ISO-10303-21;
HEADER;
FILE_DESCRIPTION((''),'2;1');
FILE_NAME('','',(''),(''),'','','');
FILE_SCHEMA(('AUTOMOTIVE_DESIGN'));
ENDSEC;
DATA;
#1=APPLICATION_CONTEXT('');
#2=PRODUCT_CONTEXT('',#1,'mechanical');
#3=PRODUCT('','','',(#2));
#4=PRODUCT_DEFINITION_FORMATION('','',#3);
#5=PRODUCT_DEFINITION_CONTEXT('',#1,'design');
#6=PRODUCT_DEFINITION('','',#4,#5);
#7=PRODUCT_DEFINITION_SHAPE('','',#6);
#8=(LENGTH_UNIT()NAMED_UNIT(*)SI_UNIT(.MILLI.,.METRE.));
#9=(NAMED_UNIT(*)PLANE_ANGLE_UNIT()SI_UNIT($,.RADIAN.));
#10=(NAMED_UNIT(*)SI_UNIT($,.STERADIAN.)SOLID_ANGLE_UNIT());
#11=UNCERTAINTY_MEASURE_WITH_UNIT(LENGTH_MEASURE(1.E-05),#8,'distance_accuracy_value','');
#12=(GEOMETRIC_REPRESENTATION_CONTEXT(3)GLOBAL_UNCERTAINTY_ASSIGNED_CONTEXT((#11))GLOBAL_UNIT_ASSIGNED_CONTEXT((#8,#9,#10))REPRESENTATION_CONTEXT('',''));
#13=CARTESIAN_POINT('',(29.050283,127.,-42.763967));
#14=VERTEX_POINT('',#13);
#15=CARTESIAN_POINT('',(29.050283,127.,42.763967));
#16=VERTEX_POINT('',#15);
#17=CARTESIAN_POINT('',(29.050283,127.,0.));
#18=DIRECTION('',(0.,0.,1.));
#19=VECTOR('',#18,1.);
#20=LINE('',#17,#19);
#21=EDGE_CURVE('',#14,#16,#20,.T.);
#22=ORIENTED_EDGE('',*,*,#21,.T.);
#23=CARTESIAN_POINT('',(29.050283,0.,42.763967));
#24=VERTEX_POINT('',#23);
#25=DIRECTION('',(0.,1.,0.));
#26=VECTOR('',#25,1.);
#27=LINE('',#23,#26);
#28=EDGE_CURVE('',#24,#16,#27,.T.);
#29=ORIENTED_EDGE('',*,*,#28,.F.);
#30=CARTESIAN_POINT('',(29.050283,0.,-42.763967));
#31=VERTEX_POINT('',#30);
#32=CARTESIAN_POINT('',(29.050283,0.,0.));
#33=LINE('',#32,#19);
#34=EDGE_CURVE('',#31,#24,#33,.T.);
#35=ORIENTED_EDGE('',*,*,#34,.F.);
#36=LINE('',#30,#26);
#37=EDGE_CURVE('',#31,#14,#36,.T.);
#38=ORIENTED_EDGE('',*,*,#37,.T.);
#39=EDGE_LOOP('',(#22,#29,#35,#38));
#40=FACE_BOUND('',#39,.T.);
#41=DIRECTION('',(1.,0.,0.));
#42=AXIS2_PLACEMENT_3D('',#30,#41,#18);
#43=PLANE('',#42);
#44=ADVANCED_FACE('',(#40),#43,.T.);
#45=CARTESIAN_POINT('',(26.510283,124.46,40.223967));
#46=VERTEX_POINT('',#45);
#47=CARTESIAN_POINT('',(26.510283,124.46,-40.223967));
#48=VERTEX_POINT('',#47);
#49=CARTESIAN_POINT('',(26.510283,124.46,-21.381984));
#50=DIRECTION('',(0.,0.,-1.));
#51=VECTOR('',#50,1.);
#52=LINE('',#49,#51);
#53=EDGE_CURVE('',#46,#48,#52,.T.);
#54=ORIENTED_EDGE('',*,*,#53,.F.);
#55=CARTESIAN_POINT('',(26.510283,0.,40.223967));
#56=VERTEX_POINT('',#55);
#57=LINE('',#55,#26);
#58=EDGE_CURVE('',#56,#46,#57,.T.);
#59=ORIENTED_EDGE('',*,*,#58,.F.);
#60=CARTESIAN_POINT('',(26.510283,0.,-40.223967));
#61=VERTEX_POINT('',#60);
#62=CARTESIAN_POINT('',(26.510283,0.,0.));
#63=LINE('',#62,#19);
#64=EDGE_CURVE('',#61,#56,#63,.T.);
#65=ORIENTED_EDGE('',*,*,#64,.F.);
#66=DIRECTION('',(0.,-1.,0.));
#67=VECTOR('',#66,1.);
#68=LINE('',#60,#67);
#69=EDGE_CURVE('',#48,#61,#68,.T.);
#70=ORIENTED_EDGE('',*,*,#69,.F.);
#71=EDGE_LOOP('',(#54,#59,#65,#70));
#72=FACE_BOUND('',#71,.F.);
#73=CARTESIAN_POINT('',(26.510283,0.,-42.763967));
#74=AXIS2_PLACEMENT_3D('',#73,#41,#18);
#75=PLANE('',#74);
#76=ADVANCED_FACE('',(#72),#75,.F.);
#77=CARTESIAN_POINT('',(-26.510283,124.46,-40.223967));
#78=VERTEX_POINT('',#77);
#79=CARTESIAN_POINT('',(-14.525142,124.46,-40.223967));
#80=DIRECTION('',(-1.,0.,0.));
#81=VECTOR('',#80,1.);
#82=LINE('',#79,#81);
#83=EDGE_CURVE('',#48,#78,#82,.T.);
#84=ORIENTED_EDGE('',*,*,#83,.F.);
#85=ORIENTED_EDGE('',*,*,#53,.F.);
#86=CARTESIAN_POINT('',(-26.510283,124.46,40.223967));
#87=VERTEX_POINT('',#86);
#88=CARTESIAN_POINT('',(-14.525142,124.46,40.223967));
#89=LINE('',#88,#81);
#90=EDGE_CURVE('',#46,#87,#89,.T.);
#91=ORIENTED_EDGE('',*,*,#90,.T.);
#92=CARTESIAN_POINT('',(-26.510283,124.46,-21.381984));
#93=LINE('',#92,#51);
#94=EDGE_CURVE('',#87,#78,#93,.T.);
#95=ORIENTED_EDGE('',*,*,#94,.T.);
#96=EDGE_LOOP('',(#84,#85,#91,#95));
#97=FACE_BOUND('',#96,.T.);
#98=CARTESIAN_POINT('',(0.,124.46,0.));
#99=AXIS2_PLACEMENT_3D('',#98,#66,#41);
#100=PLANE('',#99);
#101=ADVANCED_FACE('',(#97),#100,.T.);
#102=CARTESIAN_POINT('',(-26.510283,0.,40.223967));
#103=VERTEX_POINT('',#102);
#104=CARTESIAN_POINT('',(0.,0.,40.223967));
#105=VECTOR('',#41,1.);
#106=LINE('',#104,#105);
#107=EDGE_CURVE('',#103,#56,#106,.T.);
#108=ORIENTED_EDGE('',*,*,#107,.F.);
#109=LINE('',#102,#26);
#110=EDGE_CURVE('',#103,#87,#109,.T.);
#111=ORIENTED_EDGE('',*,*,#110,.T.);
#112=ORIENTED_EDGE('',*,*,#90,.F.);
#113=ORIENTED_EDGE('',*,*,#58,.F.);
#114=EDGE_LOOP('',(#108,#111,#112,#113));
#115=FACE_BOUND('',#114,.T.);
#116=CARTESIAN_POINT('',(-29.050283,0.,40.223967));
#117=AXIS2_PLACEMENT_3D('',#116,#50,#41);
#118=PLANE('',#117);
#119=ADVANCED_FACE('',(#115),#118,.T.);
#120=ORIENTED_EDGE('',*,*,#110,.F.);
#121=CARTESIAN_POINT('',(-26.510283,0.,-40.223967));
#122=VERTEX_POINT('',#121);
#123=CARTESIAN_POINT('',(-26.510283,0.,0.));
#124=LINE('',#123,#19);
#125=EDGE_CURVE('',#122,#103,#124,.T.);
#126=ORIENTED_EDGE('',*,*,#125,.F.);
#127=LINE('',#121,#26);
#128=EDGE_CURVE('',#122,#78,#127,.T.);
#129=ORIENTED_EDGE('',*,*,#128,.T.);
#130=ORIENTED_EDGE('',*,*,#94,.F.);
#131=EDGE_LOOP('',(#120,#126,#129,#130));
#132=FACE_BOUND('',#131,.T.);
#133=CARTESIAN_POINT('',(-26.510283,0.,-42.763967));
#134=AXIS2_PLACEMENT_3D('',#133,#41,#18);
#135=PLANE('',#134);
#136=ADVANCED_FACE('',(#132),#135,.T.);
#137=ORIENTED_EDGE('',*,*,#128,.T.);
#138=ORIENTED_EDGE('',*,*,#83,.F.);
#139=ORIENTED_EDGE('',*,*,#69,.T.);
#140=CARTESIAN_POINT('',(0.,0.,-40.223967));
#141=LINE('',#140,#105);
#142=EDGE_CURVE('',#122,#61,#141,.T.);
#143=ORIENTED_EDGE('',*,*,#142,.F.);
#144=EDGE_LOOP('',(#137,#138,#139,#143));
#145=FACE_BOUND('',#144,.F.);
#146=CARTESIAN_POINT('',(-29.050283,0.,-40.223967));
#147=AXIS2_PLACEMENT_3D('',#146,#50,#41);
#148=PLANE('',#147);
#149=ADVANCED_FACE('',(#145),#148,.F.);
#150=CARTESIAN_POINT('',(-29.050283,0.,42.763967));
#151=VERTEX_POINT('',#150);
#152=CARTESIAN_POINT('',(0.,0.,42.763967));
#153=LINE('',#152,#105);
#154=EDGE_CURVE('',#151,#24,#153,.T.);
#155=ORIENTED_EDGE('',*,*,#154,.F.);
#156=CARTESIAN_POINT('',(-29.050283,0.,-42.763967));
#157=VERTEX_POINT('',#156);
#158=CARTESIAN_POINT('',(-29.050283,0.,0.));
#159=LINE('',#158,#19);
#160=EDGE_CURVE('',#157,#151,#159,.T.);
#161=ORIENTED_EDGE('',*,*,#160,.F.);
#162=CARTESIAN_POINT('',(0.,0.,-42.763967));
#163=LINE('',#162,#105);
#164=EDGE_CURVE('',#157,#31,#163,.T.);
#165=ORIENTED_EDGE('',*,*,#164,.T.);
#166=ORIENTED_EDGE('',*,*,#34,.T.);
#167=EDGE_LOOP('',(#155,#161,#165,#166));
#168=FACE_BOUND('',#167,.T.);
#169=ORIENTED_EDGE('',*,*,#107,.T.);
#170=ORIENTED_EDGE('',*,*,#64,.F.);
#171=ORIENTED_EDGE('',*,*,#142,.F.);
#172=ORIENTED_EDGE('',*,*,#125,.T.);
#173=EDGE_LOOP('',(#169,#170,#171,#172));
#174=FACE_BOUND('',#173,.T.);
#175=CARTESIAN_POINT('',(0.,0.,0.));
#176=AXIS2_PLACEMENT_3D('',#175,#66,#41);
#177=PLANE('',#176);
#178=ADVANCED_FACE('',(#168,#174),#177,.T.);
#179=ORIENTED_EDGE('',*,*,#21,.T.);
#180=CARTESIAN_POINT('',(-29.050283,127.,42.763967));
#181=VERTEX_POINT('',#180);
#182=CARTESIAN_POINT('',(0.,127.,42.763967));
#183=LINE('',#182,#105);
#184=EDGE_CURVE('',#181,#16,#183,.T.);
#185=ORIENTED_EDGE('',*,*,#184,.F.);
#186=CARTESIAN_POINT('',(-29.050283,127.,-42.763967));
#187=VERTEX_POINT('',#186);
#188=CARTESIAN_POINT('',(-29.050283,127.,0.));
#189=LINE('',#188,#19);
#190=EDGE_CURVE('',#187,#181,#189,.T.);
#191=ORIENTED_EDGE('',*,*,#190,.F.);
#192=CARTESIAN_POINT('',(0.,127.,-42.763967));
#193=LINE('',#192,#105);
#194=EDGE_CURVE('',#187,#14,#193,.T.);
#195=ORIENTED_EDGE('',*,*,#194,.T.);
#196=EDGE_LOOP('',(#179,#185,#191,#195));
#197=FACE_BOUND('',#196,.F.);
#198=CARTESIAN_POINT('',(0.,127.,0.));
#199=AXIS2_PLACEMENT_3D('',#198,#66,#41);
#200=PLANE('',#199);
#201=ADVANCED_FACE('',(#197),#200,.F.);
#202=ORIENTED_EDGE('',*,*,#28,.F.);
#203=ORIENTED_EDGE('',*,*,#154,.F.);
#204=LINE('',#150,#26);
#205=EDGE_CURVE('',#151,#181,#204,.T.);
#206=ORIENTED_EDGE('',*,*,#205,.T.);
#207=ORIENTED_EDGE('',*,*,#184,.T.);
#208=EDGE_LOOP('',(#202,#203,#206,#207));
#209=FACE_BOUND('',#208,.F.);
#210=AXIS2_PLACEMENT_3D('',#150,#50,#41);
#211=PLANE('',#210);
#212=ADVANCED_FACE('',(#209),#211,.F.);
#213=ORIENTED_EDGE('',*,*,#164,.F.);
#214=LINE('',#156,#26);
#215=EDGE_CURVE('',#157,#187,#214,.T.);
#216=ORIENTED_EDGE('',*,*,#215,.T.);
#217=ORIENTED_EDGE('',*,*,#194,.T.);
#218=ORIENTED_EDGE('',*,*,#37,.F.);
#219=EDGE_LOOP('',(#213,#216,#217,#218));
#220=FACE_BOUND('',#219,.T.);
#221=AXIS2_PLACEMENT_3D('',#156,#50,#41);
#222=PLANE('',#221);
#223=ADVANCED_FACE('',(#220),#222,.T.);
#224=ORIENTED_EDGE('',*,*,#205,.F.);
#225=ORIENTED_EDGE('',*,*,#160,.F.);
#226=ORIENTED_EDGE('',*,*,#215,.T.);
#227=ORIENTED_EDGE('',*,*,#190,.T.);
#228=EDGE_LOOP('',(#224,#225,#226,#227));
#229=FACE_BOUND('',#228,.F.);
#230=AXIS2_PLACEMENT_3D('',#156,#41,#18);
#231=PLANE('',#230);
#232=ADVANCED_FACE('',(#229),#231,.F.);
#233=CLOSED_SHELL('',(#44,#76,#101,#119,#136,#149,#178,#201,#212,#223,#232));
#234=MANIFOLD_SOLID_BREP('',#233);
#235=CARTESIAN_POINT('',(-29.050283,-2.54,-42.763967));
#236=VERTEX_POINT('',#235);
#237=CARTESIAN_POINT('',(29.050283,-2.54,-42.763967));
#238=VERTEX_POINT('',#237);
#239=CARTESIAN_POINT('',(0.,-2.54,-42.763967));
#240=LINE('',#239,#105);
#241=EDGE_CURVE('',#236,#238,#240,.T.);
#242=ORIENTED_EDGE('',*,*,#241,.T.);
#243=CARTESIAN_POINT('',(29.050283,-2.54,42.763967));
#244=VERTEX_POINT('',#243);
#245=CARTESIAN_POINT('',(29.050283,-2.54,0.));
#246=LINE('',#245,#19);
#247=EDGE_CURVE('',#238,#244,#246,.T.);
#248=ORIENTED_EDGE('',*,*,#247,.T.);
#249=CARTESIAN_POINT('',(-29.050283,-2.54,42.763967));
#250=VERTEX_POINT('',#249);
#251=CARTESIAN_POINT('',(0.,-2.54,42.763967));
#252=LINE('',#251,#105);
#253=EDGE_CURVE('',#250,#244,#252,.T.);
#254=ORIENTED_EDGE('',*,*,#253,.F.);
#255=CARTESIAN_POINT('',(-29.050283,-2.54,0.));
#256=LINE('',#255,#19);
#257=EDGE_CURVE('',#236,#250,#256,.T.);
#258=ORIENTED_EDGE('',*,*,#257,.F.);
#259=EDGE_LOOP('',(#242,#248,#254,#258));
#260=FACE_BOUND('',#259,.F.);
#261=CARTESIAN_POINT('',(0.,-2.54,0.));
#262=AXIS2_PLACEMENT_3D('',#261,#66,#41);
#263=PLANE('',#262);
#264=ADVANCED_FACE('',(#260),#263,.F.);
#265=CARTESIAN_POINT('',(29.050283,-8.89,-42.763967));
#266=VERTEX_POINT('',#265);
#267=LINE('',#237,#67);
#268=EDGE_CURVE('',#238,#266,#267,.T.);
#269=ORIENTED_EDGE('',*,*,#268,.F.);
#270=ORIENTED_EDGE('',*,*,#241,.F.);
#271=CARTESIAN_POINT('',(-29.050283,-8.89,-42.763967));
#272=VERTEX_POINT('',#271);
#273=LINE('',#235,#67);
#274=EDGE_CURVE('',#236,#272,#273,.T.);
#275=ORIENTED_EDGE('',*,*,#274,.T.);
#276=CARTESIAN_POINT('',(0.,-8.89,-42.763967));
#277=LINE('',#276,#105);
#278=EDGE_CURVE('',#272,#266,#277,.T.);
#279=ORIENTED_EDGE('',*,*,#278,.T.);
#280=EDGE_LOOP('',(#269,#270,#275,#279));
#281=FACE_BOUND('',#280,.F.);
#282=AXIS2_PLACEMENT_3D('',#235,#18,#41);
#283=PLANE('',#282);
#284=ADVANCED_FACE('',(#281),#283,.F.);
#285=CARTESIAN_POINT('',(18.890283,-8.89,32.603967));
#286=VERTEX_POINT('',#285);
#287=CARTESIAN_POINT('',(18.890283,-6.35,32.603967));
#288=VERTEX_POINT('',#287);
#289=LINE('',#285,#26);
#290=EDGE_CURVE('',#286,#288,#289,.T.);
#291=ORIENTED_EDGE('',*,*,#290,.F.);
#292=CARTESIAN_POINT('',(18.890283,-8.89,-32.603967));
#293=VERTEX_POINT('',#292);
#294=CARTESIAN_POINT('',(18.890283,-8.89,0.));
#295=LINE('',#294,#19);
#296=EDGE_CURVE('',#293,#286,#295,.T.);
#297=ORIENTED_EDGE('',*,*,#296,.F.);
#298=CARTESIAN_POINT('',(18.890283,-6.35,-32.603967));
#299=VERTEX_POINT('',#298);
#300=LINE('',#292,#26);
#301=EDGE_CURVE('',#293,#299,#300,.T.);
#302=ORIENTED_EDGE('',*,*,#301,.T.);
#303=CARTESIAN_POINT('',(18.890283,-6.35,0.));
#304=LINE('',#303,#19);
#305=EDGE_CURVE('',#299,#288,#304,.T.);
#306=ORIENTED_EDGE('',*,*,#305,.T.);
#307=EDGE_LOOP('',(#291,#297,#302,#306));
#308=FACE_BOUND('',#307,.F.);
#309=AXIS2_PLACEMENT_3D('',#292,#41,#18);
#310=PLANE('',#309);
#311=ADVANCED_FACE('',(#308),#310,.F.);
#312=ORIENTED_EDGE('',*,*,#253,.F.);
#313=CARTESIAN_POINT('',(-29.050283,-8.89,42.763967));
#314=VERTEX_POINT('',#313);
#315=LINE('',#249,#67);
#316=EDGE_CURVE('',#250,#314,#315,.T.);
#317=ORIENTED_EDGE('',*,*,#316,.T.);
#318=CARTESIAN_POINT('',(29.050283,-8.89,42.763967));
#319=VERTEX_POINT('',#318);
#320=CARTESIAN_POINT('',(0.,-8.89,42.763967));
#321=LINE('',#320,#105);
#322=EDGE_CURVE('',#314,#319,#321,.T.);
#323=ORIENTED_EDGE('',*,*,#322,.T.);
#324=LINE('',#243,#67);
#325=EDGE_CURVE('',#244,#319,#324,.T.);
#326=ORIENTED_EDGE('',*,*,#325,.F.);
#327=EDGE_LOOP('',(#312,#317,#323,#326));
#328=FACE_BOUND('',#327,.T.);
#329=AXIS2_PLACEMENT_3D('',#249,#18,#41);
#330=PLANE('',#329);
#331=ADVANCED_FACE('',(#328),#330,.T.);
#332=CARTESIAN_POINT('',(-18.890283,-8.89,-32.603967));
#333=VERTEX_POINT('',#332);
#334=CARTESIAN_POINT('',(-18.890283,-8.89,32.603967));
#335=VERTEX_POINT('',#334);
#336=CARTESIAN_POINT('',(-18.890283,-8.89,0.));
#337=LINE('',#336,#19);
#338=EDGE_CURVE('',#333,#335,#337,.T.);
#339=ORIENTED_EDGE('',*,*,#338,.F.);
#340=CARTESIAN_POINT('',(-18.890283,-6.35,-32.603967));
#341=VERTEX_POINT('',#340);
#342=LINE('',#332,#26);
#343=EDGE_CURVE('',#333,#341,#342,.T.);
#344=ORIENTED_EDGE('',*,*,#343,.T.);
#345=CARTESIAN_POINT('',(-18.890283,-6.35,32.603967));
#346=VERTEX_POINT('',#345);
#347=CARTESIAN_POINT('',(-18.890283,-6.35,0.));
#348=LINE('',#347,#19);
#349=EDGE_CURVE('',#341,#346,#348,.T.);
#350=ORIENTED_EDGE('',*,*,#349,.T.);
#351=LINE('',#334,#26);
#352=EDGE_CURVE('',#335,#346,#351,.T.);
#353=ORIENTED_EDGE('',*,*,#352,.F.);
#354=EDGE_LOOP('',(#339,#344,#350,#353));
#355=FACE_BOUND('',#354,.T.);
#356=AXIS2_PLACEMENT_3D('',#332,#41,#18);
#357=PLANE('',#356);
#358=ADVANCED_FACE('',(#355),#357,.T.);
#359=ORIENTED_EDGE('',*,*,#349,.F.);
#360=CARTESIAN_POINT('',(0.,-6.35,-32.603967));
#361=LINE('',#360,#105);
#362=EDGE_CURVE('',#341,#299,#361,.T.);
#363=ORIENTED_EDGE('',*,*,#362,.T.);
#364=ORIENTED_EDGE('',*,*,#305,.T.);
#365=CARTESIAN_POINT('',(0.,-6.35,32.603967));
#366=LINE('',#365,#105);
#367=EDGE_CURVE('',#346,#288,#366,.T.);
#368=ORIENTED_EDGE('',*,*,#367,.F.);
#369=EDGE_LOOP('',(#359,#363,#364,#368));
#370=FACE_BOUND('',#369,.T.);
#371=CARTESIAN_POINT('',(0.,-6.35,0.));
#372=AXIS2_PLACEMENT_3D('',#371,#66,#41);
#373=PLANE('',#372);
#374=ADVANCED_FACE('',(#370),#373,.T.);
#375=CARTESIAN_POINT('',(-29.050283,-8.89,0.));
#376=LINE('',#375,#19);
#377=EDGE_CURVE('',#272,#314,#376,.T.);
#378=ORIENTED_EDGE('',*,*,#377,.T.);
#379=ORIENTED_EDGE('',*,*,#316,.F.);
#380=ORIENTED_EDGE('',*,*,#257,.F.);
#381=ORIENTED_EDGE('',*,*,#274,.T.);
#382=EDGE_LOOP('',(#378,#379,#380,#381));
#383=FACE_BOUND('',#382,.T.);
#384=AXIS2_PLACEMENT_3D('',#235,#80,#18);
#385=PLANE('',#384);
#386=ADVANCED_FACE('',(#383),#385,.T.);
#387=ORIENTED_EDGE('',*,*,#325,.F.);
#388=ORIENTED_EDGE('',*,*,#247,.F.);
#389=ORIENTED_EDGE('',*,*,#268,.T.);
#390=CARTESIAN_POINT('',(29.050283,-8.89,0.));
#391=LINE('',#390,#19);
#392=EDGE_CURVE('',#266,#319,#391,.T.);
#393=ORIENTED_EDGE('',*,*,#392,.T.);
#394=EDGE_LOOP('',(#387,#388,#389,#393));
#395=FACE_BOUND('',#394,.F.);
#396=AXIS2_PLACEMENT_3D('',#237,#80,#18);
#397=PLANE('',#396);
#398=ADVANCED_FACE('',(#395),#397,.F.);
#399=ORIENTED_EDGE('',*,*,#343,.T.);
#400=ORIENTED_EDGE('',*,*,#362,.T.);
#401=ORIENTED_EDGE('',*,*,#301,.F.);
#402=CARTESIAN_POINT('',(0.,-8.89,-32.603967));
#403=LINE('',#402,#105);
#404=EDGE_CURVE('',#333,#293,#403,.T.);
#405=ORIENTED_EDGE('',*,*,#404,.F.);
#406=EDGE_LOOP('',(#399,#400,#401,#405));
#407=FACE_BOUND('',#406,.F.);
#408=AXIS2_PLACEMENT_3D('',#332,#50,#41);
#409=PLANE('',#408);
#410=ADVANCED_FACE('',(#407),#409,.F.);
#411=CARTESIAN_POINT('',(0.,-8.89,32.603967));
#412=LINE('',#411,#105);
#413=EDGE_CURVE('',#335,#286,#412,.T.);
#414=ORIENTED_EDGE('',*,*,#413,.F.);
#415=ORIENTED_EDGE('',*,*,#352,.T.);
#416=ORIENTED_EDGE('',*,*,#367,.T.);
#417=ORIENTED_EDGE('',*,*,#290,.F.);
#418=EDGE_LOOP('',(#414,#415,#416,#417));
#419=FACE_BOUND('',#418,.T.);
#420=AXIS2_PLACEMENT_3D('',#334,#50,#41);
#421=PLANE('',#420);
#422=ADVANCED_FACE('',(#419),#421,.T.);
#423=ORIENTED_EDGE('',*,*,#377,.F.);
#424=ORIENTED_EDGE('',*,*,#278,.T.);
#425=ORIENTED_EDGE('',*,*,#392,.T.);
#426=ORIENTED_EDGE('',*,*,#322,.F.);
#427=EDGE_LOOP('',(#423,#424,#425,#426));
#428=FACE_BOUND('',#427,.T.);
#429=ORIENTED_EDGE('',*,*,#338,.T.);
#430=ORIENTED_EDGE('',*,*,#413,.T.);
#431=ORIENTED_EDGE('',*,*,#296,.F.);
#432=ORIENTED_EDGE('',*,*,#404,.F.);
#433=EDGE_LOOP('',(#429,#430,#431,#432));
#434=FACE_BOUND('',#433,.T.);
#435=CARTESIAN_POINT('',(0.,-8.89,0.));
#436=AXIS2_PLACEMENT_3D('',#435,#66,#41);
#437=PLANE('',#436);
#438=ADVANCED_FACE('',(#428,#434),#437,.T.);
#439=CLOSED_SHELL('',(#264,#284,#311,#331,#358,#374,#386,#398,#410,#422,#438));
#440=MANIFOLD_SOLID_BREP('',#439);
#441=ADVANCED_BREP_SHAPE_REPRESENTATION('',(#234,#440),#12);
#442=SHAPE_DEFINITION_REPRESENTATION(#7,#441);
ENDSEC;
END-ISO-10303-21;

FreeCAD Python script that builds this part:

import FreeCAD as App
import Part
import Sketcher
from FreeCAD import Vector
Q = App.Units.Quantity


def faces_at(feature, points):
    """Names of the faces that lie closest to the given points."""
    faces = feature.Shape.Faces
    near = lambda p: min(range(len(faces)), key=lambda i: faces[i].distToShape(Part.Vertex(*p))[0])
    return sorted({f"Face{near(p) + 1}" for p in points})


def add_polygon(sketch, points):
    """Adds a closed chain of lines whose ends are joined by coincident constraints."""
    first, n = sketch.GeometryCount, len(points)
    for a, b in zip(points, points[1:] + points[:1]):
        sketch.addGeometry(Part.LineSegment(App.Vector(*a, 0), App.Vector(*b, 0)), False)
    for i in range(n):
        sketch.addConstraint(Sketcher.Constraint("Coincident", first + i, 2, first + (i + 1) % n, 1))

doc = App.newDocument("Part")
body = doc.addObject("PartDesign::Body", "Body")

# Sketch on XZ plane
sketch1 = doc.addObject("Sketcher::SketchObject", "Sketch")
body.addObject(sketch1)
sketch1.AttachmentSupport = (doc.XZ_Plane, [""])
sketch1.MapMode = "FlatFace"
add_polygon(sketch1, [(-29.050283, 42.763967), (-29.050283, -42.763967), (29.050283, -42.763967), (29.050283, 42.763967)])  # lines 0-3
sketch1.addConstraint(Sketcher.Constraint("Vertical", 0))
sketch1.addConstraint(Sketcher.Constraint("Horizontal", 1))
sketch1.addConstraint(Sketcher.Constraint("Vertical", 2))
sketch1.addConstraint(Sketcher.Constraint("Horizontal", 3))
sketch1.addConstraint(Sketcher.Constraint("Symmetric", 0, 2, 2, 2, -1, 1))
sketch1.addConstraint(Sketcher.Constraint("DistanceX", 1, 1, 1, 2, Q("58.100566 mm")))
sketch1.addConstraint(Sketcher.Constraint("DistanceY", 0, 2, 0, 1, Q("85.527934 mm")))
pad1 = doc.addObject("PartDesign::Pad", "Pad")
body.addObject(pad1)
pad1.Profile = sketch1
pad1.Length = Q("5 in")
pad1.Reversed = True
doc.recompute()

thickness = doc.addObject("PartDesign::Thickness", "Thickness")
body.addObject(thickness)
thickness.Base = (pad1, faces_at(pad1, [(0, 0, 0)]))
thickness.Value = Q("0.1 in")
thickness.Reversed = True
thickness.Join = "Arc"
body2 = doc.addObject("PartDesign::Body", "Body001")

# Sketch on XZ plane
sketch2 = doc.addObject("Sketcher::SketchObject", "Sketch001")
body2.addObject(sketch2)
sketch2.AttachmentSupport = (doc.getObject("XZ_Plane001"), [""])
sketch2.MapMode = "FlatFace"
add_polygon(sketch2, [(-29.050283, 42.763967), (-29.050283, -42.763967), (29.050283, -42.763967), (29.050283, 42.763967)])  # lines 0-3
sketch2.addConstraint(Sketcher.Constraint("Vertical", 0))
sketch2.addConstraint(Sketcher.Constraint("Horizontal", 1))
sketch2.addConstraint(Sketcher.Constraint("Vertical", 2))
sketch2.addConstraint(Sketcher.Constraint("Horizontal", 3))
sketch2.addConstraint(Sketcher.Constraint("Symmetric", 0, 2, 2, 2, -1, 1))
sketch2.addConstraint(Sketcher.Constraint("DistanceX", 1, 1, 1, 2, Q("58.100566 mm")))
sketch2.addConstraint(Sketcher.Constraint("DistanceY", 0, 2, 0, 1, Q("85.527934 mm")))
pad2 = doc.addObject("PartDesign::Pad", "Pad001")
body2.addObject(pad2)
pad2.Profile = sketch2
pad2.Length = Q("0.25 in")
body3 = doc.addObject("PartDesign::Body", "Body002")
doc.recompute()

body2.Placement = App.Placement(Vector(0, -2.54, 0), App.Rotation(Vector(0, 0, 1), 0))
boolean = doc.addObject("PartDesign::Boolean", "Boolean")
body3.addObject(boolean)
boolean.Type = "Fuse"
boolean.addObjects([body2])

# Sketch on XZ plane
sketch3 = doc.addObject("Sketcher::SketchObject", "Sketch002")
body3.addObject(sketch3)
sketch3.AttachmentSupport = (doc.getObject("XZ_Plane002"), [""])
sketch3.MapMode = "FlatFace"
sketch3.AttachmentOffset = App.Placement(Vector(0, 0, 0.35 * 25.4), App.Rotation())
add_polygon(sketch3, [(-18.890283, 32.603967), (-18.890283, -32.603967), (18.890283, -32.603967), (18.890283, 32.603967)])  # lines 0-3
sketch3.addConstraint(Sketcher.Constraint("Vertical", 0))
sketch3.addConstraint(Sketcher.Constraint("Horizontal", 1))
sketch3.addConstraint(Sketcher.Constraint("Vertical", 2))
sketch3.addConstraint(Sketcher.Constraint("Horizontal", 3))
sketch3.addConstraint(Sketcher.Constraint("Symmetric", 0, 2, 2, 2, -1, 1))
sketch3.addConstraint(Sketcher.Constraint("DistanceX", 1, 1, 1, 2, Q("37.780566 mm")))
sketch3.addConstraint(Sketcher.Constraint("DistanceY", 0, 2, 0, 1, Q("65.207934 mm")))
pocket1 = doc.addObject("PartDesign::Pocket", "Pocket")
body3.addObject(pocket1)
pocket1.Profile = sketch3
pocket1.Length = Q("0.1 in")

doc.recompute()
